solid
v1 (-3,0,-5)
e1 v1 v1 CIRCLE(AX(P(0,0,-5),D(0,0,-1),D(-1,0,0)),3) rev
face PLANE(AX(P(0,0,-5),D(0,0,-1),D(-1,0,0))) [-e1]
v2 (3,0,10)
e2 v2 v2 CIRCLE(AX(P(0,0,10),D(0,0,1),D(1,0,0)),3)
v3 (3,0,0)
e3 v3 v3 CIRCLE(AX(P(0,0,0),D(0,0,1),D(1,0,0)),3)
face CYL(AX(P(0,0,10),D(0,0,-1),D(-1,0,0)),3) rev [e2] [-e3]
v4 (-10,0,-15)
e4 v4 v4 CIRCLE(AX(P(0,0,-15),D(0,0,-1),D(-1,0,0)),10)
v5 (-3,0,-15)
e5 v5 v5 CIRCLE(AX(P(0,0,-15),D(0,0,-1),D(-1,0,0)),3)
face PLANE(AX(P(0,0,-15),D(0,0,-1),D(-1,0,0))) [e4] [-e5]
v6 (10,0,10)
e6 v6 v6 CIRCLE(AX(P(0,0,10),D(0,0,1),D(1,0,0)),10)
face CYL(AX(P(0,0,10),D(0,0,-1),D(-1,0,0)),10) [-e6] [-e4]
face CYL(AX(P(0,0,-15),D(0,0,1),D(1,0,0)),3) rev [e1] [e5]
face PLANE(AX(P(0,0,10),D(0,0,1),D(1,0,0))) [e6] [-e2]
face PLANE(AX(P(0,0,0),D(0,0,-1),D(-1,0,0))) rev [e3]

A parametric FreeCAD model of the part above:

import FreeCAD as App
import Part
import Sketcher
from FreeCAD import Vector

doc = App.newDocument("Part")
body = doc.addObject("PartDesign::Body", "Body")

sketch1 = body.newObject("Sketcher::SketchObject", "Sketch")
sketch1.AttachmentSupport = (doc.getObject("XY_Plane"), [""])
sketch1.MapMode = "FlatFace"
sketch1.addGeometry(Part.Circle(Vector(0, 0, 0), Vector(0, 0, 1), 10), False)
sketch1.addGeometry(Part.Circle(Vector(0, 0, 0), Vector(0, 0, 1), 3), False)
sketch1.addConstraint(Sketcher.Constraint("Coincident", 0, 3, -1, 1))
sketch1.addConstraint(Sketcher.Constraint("Coincident", 1, 3, -1, 1))
sketch1.addConstraint(Sketcher.Constraint("Diameter", 0, 20.0))
sketch1.addConstraint(Sketcher.Constraint("Diameter", 1, 6.0))
pad1 = body.newObject("PartDesign::Pad", "Pad")
pad1.Profile = sketch1
pad1.Length = 10

sketch2 = body.newObject("Sketcher::SketchObject", "Sketch001")
sketch2.AttachmentSupport = (doc.getObject("XY_Plane"), [""])
sketch2.MapMode = "FlatFace"
sketch2.AttachmentOffset = App.Placement(Vector(0, 0, -5), App.Rotation())
sketch2.addGeometry(Part.Circle(Vector(0, 0, 0), Vector(0, 0, 1), 10), False)
sketch2.addConstraint(Sketcher.Constraint("Coincident", 0, 3, -1, 1))
sketch2.addConstraint(Sketcher.Constraint("Diameter", 0, 20.0))
pad2 = body.newObject("PartDesign::Pad", "Pad001")
pad2.Profile = sketch2
pad2.Length = 5

sketch3 = body.newObject("Sketcher::SketchObject", "Sketch002")
sketch3.AttachmentSupport = (doc.getObject("XY_Plane"), [""])
sketch3.MapMode = "FlatFace"
sketch3.AttachmentOffset = App.Placement(Vector(0, 0, -15), App.Rotation())
sketch3.addGeometry(Part.Circle(Vector(0, 0, 0), Vector(0, 0, 1), 10), False)
sketch3.addGeometry(Part.Circle(Vector(0, 0, 0), Vector(0, 0, 1), 3), False)
sketch3.addConstraint(Sketcher.Constraint("Coincident", 0, 3, -1, 1))
sketch3.addConstraint(Sketcher.Constraint("Coincident", 1, 3, -1, 1))
sketch3.addConstraint(Sketcher.Constraint("Diameter", 0, 20.0))
sketch3.addConstraint(Sketcher.Constraint("Diameter", 1, 6.0))
pad3 = body.newObject("PartDesign::Pad", "Pad002")
pad3.Profile = sketch3
pad3.Length = 10

doc.recompute()
